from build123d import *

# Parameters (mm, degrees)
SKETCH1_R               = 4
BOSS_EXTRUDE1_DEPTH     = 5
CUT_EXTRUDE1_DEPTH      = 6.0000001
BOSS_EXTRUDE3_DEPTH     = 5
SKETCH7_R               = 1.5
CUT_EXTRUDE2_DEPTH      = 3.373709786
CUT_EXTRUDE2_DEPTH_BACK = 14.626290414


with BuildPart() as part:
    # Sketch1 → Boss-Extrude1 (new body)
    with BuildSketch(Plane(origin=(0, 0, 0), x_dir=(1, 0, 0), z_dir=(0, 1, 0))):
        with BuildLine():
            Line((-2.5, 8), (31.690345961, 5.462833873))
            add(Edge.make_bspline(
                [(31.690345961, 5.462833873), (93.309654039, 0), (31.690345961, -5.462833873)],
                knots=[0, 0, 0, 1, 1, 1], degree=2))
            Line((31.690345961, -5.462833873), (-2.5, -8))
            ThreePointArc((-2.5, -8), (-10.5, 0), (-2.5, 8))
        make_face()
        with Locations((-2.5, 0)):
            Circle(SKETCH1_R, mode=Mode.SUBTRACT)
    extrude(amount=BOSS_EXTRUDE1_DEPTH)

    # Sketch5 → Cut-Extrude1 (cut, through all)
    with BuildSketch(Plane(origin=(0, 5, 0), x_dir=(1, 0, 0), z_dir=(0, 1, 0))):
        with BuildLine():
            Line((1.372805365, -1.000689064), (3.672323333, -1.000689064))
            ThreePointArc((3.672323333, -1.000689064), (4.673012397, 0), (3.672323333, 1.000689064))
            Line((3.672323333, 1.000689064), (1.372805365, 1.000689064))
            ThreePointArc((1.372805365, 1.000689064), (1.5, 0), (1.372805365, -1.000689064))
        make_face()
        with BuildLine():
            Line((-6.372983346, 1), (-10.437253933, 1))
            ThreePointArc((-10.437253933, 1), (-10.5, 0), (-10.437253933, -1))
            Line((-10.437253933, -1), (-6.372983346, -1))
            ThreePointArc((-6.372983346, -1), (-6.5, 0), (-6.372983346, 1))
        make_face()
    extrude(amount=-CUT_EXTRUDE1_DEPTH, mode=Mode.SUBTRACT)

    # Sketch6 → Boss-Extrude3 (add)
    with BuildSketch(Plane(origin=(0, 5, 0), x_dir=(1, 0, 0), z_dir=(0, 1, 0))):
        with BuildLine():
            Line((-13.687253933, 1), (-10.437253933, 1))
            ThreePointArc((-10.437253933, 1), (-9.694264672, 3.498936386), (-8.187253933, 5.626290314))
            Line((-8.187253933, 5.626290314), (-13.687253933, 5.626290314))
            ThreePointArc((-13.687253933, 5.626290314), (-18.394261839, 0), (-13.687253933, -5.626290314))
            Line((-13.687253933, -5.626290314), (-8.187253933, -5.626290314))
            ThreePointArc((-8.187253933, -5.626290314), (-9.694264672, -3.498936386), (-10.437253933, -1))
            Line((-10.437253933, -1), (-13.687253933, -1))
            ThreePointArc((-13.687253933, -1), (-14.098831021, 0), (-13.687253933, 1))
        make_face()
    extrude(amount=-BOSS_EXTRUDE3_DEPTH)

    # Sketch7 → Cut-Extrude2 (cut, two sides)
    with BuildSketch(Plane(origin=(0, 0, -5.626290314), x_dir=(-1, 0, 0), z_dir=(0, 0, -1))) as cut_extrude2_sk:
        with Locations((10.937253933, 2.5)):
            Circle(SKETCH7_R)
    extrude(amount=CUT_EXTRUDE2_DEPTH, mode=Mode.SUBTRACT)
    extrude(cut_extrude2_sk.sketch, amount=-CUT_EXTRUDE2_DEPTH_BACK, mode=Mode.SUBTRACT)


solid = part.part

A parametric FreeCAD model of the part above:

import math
import FreeCAD as App
import Part
import Sketcher
Q = App.Units.Quantity

doc = App.newDocument("Part")
params = doc.addObject("Spreadsheet::Sheet", "Params")
for row, (alias, value) in enumerate([
    ("sketch1_diameter", "8 mm"),
    ("sketch1_radius", "8 mm"),
    ("pad1_length", "5 mm"),
    ("sketch2_radius", "4 mm"),
    ("sketch2_radius2", "8 mm"),
    ("sketch3_radius", "8 mm"),
    ("sketch3_width", "5.5 mm"),
    ("sketch3_width2", "3.25 mm"),
    ("pad2_length", "5 mm"),
    ("sketch4_diameter", "3 mm"),
], start=1):
    params.set(f"A{row}", alias)
    params.set(f"B{row}", "=" + value)
    params.setAlias(f"B{row}", alias)

body = doc.addObject("PartDesign::Body", "Body")

sketch1 = doc.addObject("Sketcher::SketchObject", "Sketch")
body.addObject(sketch1)
sketch1.AttachmentSupport = (doc.XZ_Plane, [""])
sketch1.MapMode = "FlatFace"
sketch1.addGeometry([
    Part.LineSegment(App.Vector(31.690346, -5.462834, 0), App.Vector(-2.5, -8, 0)),
    Part.ArcOfCircle(Part.Circle(App.Vector(-2.5, 0, 0), App.Vector(0, 0, 1), 8), math.radians(90), math.radians(270)),
    Part.LineSegment(App.Vector(-2.5, 8, 0), App.Vector(31.690346, 5.462834, 0)),
    Part.BSplineCurve([App.Vector(31.690346, -5.462834, 0), App.Vector(93.309654, 0, 0), App.Vector(31.690346, 5.462834, 0)], [3, 3], [0, 1], False, 2, [1, 1, 1], False),
    Part.Circle(App.Vector(-2.5, 0, 0), App.Vector(0, 0, 1), 4),
], False)
sketch1.addConstraint([
    Sketcher.Constraint("Block", 3),
    Sketcher.Constraint("Coincident", 0, 2, 1, 2),
    Sketcher.Constraint("Coincident", 1, 1, 2, 1),
    Sketcher.Constraint("Coincident", 2, 2, 3, 2),
    Sketcher.Constraint("Coincident", 3, 1, 0, 1),
    Sketcher.Constraint("Coincident", 4, 3, 1, 3),
    Sketcher.Constraint("Symmetric", 0, 2, 1, 1, -1),
    Sketcher.Constraint("Vertical", 4, 3, 0, 2),
    Sketcher.Constraint("Diameter", 4, Q("8 mm")),
    Sketcher.Constraint("Radius", 1, Q("8 mm")),
    Sketcher.Constraint("DistanceX", 1, 3, -1, 1, Q("2.5 mm")),
])
sketch1.setExpression("Constraints[8]", "Params.sketch1_diameter")
sketch1.setExpression("Constraints[9]", "Params.sketch1_radius")
pad1 = doc.addObject("PartDesign::Pad", "Pad")
body.addObject(pad1)
pad1.Profile = sketch1
pad1.setExpression("Length", "Params.pad1_length")
pad1.Reversed = True

sketch2 = doc.addObject("Sketcher::SketchObject", "Sketch001")
body.addObject(sketch2)
sketch2.AttachmentSupport = (doc.XZ_Plane, [""])
sketch2.MapMode = "FlatFace"
sketch2.AttachmentOffset = App.Placement(App.Vector(0, 0, -5), App.Rotation())
sketch2.addGeometry([
    Part.LineSegment(App.Vector(1.4, 1, 0), App.Vector(3.7, 1, 0)),
    Part.ArcOfCircle(Part.Circle(App.Vector(3.7, 0, 0), App.Vector(0, 0, 1), 1), math.radians(-90), math.radians(90)),
    Part.LineSegment(App.Vector(3.7, -1, 0), App.Vector(1.4, -1, 0)),
    Part.ArcOfCircle(Part.Circle(App.Vector(-2.5, 0, 0), App.Vector(0, 0, 1), 4), math.radians(-14), math.radians(14)),
    Part.LineSegment(App.Vector(-6.4, -1, 0), App.Vector(-10.4, -1, 0)),
    Part.ArcOfCircle(Part.Circle(App.Vector(-2.5, 0, 0), App.Vector(0, 0, 1), 8), math.radians(172.82), math.radians(187.18)),
    Part.LineSegment(App.Vector(-10.4, 1, 0), App.Vector(-6.4, 1, 0)),
    Part.ArcOfCircle(Part.Circle(App.Vector(-2.5, 0, 0), App.Vector(0, 0, 1), 4), math.radians(166), math.radians(194)),
], False)
sketch2.addConstraint([
    Sketcher.Constraint("Tangent", 0, 2, 1, 2),
    Sketcher.Constraint("Tangent", 1, 1, 2, 1),
    Sketcher.Constraint("Coincident", 2, 2, 3, 1),
    Sketcher.Constraint("Coincident", 3, 2, 0, 1),
    Sketcher.Constraint("Coincident", 4, 2, 5, 2),
    Sketcher.Constraint("Coincident", 5, 1, 6, 1),
    Sketcher.Constraint("Coincident", 6, 2, 7, 1),
    Sketcher.Constraint("Coincident", 7, 2, 4, 1),
    Sketcher.Constraint("Horizontal", 0),
    Sketcher.Constraint("Horizontal", 2),
    Sketcher.Constraint("Horizontal", 4),
    Sketcher.Constraint("Horizontal", 6),
    Sketcher.Constraint("Coincident", 5, 3, 3, 3),
    Sketcher.Constraint("Coincident", 7, 3, 3, 3),
    Sketcher.Constraint("Equal", 3, 7),
    Sketcher.Constraint("Symmetric", 2, 2, 3, 2, -1),
    Sketcher.Constraint("Vertical", 4, 2, 5, 1),
    Sketcher.Constraint("Radius", 3, Q("4 mm")),
    Sketcher.Constraint("Radius", 5, Q("8 mm")),
    Sketcher.Constraint("DistanceY", 4, 2, -1, 1, Q("1 mm")),
    Sketcher.Constraint("DistanceX", 3, 3, -1, 1, Q("2.5 mm")),
    Sketcher.Constraint("Radius", 1, Q("1.000689 mm")),
    Sketcher.Constraint("DistanceX", 0, 1, 0, 2, Q("2.299518 mm")),
])
sketch2.setExpression("Constraints[17]", "Params.sketch2_radius")
sketch2.setExpression("Constraints[18]", "Params.sketch2_radius2")
pocket1 = doc.addObject("PartDesign::Pocket", "Pocket")
body.addObject(pocket1)
pocket1.Profile = sketch2
pocket1.Type = "ThroughAll"
pocket1.Reversed = True

sketch3 = doc.addObject("Sketcher::SketchObject", "Sketch002")
body.addObject(sketch3)
sketch3.AttachmentSupport = (doc.XZ_Plane, [""])
sketch3.MapMode = "FlatFace"
sketch3.AttachmentOffset = App.Placement(App.Vector(0, 0, -5), App.Rotation())
sketch3.addGeometry([
    Part.LineSegment(App.Vector(-13.7, -1, 0), App.Vector(-10.4, -1, 0)),
    Part.ArcOfCircle(Part.Circle(App.Vector(-2.5, 0, 0), App.Vector(0, 0, 1), 8), math.radians(-173), math.radians(-135)),
    Part.LineSegment(App.Vector(-8.2, -5.6, 0), App.Vector(-13.7, -5.6, 0)),
    Part.ArcOfCircle(Part.Circle(App.Vector(-12.7, 0, 0), App.Vector(0, 0, 1), 5.7), math.radians(100), math.radians(260)),
    Part.LineSegment(App.Vector(-13.7, 5.6, 0), App.Vector(-8.2, 5.6, 0)),
    Part.ArcOfCircle(Part.Circle(App.Vector(-2.5, 0, 0), App.Vector(0, 0, 1), 8), math.radians(135), math.radians(173)),
    Part.LineSegment(App.Vector(-10.4, 1, 0), App.Vector(-13.7, 1, 0)),
    Part.ArcOfCircle(Part.Circle(App.Vector(-12.7, 0, 0), App.Vector(0, 0, 1), 1.4), math.radians(135), math.radians(225)),
], False)
sketch3.addConstraint([
    Sketcher.Constraint("Coincident", 0, 2, 1, 1),
    Sketcher.Constraint("Coincident", 1, 2, 2, 1),
    Sketcher.Constraint("Coincident", 2, 2, 3, 2),
    Sketcher.Constraint("Coincident", 3, 1, 4, 1),
    Sketcher.Constraint("Coincident", 4, 2, 5, 1),
    Sketcher.Constraint("Coincident", 5, 2, 6, 1),
    Sketcher.Constraint("Coincident", 6, 2, 7, 1),
    Sketcher.Constraint("Coincident", 7, 2, 0, 1),
    Sketcher.Constraint("Horizontal", 0),
    Sketcher.Constraint("Horizontal", 2),
    Sketcher.Constraint("Horizontal", 4),
    Sketcher.Constraint("Horizontal", 6),
    Sketcher.Constraint("Coincident", 5, 3, 1, 3),
    Sketcher.Constraint("Coincident", 7, 3, 3, 3),
    Sketcher.Constraint("Equal", 1, 5),
    Sketcher.Constraint("Symmetric", 2, 2, 3, 1, -1),
    Sketcher.Constraint("Symmetric", 0, 2, 5, 2, -1),
    Sketcher.Constraint("Vertical", 3, 1, 6, 2),
    Sketcher.Constraint("Radius", 1, Q("8 mm")),
    Sketcher.Constraint("DistanceX", 2, 2, 2, 1, Q("5.5 mm")),
    Sketcher.Constraint("DistanceY", 0, 2, -1, 1, Q("1 mm")),
    Sketcher.Constraint("DistanceX", 0, 1, 0, 2, Q("3.25 mm")),
    Sketcher.Constraint("DistanceX", 1, 3, -1, 1, Q("2.5 mm")),
    Sketcher.Constraint("Radius", 3, Q("5.716059 mm")),
])
sketch3.setExpression("Constraints[18]", "Params.sketch3_radius")
sketch3.setExpression("Constraints[19]", "Params.sketch3_width")
sketch3.setExpression("Constraints[21]", "Params.sketch3_width2")
pad2 = doc.addObject("PartDesign::Pad", "Pad001")
body.addObject(pad2)
pad2.Profile = sketch3
pad2.setExpression("Length", "Params.pad2_length")

sketch4 = doc.addObject("Sketcher::SketchObject", "Sketch003")
body.addObject(sketch4)
sketch4.AttachmentSupport = (doc.XY_Plane, [""])
sketch4.MapMode = "FlatFace"
sketch4.AttachmentOffset = App.Placement(App.Vector(0, 0, -5.62629), App.Rotation())
sketch4.addGeometry(Part.Circle(App.Vector(-10.9, 2.5, 0), App.Vector(0, 0, 1), 1.5), False)
sketch4.addConstraint([
    Sketcher.Constraint("Diameter", 0, Q("3 mm")),
    Sketcher.Constraint("DistanceY", -1, 1, 0, 3, Q("2.5 mm")),
    Sketcher.Constraint("DistanceX", 0, 3, -1, 1, Q("10.937254 mm")),
])
sketch4.setExpression("Constraints[0]", "Params.sketch4_diameter")
pocket2 = doc.addObject("PartDesign::Pocket", "Pocket001")
body.addObject(pocket2)
pocket2.Profile = sketch4
pocket2.Type = "ThroughAll"
pocket2.Midplane = True

doc.recompute()
